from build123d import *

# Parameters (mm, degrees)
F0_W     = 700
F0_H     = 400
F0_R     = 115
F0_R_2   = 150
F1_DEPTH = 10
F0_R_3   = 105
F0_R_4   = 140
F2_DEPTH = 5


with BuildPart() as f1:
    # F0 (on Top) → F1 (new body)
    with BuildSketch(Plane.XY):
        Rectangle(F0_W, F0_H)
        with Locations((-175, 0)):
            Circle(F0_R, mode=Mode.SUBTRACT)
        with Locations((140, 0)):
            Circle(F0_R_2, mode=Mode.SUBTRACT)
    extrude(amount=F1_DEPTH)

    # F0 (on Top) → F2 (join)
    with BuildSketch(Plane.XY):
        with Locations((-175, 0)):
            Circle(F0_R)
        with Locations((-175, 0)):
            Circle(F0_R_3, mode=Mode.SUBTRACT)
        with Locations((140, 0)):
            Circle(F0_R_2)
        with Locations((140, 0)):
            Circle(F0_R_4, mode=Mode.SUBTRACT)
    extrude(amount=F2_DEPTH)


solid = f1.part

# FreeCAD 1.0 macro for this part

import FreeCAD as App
import Part
import Sketcher


def add_polygon(sketch, points):
    """Adds a closed chain of lines whose ends are joined by coincident constraints."""
    first, n = sketch.GeometryCount, len(points)
    for a, b in zip(points, points[1:] + points[:1]):
        sketch.addGeometry(Part.LineSegment(App.Vector(*a, 0), App.Vector(*b, 0)), False)
    for i in range(n):
        sketch.addConstraint(Sketcher.Constraint("Coincident", first + i, 2, first + (i + 1) % n, 1))

doc = App.newDocument("Part")
body = doc.addObject("PartDesign::Body", "Body")

sketch1 = body.newObject("Sketcher::SketchObject", "Sketch")
sketch1.AttachmentSupport = (doc.getObject("XY_Plane"), [""])
sketch1.MapMode = "FlatFace"
add_polygon(sketch1, [(-350, 200), (-350, -200), (350, -200), (350, 200)])
sketch1.addGeometry(Part.Circle(App.Vector(-175, 0, 0), App.Vector(0, 0, 1), 115), False)
sketch1.addGeometry(Part.Circle(App.Vector(140, 0, 0), App.Vector(0, 0, 1), 150), False)
sketch1.addConstraint([
    Sketcher.Constraint("Vertical", 0),
    Sketcher.Constraint("Horizontal", 1),
    Sketcher.Constraint("Vertical", 2),
    Sketcher.Constraint("Horizontal", 3),
    Sketcher.Constraint("Symmetric", 0, 2, 2, 2, -1, 1),
    Sketcher.Constraint("PointOnObject", 4, 3, -1),
    Sketcher.Constraint("PointOnObject", 5, 3, -1),
    Sketcher.Constraint("Diameter", 4, 230.0),
    Sketcher.Constraint("Diameter", 5, 300.0),
    Sketcher.Constraint("DistanceX", 1, 1, 1, 2, 700.0),
    Sketcher.Constraint("DistanceY", 0, 2, 0, 1, 400.0),
    Sketcher.Constraint("DistanceX", 4, 3, -1, 1, 175.0),
    Sketcher.Constraint("DistanceX", -1, 1, 5, 3, 140.0),
])
pad1 = body.newObject("PartDesign::Pad", "Pad")
pad1.Profile = sketch1
pad1.Length = 10

sketch2 = body.newObject("Sketcher::SketchObject", "Sketch001")
sketch2.AttachmentSupport = (doc.getObject("XY_Plane"), [""])
sketch2.MapMode = "FlatFace"
sketch2.addGeometry([
    Part.Circle(App.Vector(-175, 0, 0), App.Vector(0, 0, 1), 115),
    Part.Circle(App.Vector(-175, 0, 0), App.Vector(0, 0, 1), 105),
    Part.Circle(App.Vector(140, 0, 0), App.Vector(0, 0, 1), 150),
    Part.Circle(App.Vector(140, 0, 0), App.Vector(0, 0, 1), 140),
], False)
sketch2.addConstraint([
    Sketcher.Constraint("Coincident", 1, 3, 0, 3),
    Sketcher.Constraint("Coincident", 3, 3, 2, 3),
    Sketcher.Constraint("PointOnObject", 0, 3, -1),
    Sketcher.Constraint("PointOnObject", 2, 3, -1),
    Sketcher.Constraint("Diameter", 0, 230.0),
    Sketcher.Constraint("Diameter", 1, 210.0),
    Sketcher.Constraint("Diameter", 2, 300.0),
    Sketcher.Constraint("Diameter", 3, 280.0),
    Sketcher.Constraint("DistanceX", 0, 3, -1, 1, 175.0),
    Sketcher.Constraint("DistanceX", -1, 1, 2, 3, 140.0),
])
pad2 = body.newObject("PartDesign::Pad", "Pad001")
pad2.Profile = sketch2
pad2.Length = 5

doc.recompute()
